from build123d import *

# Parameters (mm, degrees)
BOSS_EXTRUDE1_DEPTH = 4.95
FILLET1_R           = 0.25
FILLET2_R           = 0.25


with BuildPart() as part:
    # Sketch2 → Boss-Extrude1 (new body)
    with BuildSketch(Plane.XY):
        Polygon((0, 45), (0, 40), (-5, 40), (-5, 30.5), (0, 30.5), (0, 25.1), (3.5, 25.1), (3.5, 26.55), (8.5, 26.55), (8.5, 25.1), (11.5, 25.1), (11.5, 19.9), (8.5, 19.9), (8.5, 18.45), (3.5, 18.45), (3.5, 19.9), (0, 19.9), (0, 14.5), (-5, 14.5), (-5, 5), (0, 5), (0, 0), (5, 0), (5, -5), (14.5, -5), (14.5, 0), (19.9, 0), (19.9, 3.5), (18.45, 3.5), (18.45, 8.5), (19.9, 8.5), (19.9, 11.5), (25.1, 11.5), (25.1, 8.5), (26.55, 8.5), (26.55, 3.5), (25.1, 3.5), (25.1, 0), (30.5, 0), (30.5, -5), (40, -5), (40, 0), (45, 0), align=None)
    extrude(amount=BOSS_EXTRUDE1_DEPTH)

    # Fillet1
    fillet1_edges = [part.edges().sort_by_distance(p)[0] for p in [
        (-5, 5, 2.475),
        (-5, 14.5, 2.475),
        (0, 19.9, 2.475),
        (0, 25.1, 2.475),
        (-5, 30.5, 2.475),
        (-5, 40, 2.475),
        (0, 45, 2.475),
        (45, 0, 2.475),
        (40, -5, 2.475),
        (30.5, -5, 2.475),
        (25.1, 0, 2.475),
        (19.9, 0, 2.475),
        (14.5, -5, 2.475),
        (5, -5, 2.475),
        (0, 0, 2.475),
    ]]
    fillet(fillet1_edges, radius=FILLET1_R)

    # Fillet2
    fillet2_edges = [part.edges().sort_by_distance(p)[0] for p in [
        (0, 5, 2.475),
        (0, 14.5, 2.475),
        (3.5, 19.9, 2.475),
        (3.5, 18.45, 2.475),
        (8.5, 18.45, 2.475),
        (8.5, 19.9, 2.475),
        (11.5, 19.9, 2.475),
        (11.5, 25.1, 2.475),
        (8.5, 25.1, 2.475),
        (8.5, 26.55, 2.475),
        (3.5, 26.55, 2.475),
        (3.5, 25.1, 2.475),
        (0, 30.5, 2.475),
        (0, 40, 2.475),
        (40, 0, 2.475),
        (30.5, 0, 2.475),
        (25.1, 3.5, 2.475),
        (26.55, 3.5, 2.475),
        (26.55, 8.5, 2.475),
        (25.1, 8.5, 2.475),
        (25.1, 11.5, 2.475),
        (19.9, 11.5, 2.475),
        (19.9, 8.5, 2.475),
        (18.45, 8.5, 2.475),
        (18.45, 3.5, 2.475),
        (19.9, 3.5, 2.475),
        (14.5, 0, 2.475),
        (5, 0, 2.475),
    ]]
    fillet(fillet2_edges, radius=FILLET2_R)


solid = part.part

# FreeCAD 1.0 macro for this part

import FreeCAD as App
import Part
import Sketcher

V = App.Vector


def edges_at(feature, points):
    """Names of the edges that pass closest to the given points."""
    edges = feature.Shape.Edges
    near = lambda p: min(range(len(edges)), key=lambda i: edges[i].distToShape(Part.Vertex(*p))[0])
    return sorted({f"Edge{near(p) + 1}" for p in points})

doc = App.newDocument("Part")
body = doc.addObject("PartDesign::Body", "Body")

# Sketch on XY plane
sketch1 = body.newObject("Sketcher::SketchObject", "Sketch")
sketch1.AttachmentSupport = (doc.getObject("XY_Plane"), [""])
sketch1.MapMode = "FlatFace"
sketch1.addGeometry(Part.LineSegment(V(0, 45, 0), V(0, 40, 0)), False)
sketch1.addGeometry(Part.LineSegment(V(0, 40, 0), V(-5, 40, 0)), False)
sketch1.addGeometry(Part.LineSegment(V(-5, 40, 0), V(-5, 30.5, 0)), False)
sketch1.addGeometry(Part.LineSegment(V(-5, 30.5, 0), V(0, 30.5, 0)), False)
sketch1.addGeometry(Part.LineSegment(V(0, 30.5, 0), V(0, 25.1, 0)), False)
sketch1.addGeometry(Part.LineSegment(V(0, 25.1, 0), V(3.5, 25.1, 0)), False)
sketch1.addGeometry(Part.LineSegment(V(3.5, 25.1, 0), V(3.5, 26.6, 0)), False)
sketch1.addGeometry(Part.LineSegment(V(3.5, 26.6, 0), V(8.5, 26.6, 0)), False)
sketch1.addGeometry(Part.LineSegment(V(8.5, 26.6, 0), V(8.5, 25.1, 0)), False)
sketch1.addGeometry(Part.LineSegment(V(8.5, 25.1, 0), V(11.5, 25.1, 0)), False)
sketch1.addGeometry(Part.LineSegment(V(11.5, 25.1, 0), V(11.5, 19.9, 0)), False)
sketch1.addGeometry(Part.LineSegment(V(11.5, 19.9, 0), V(8.5, 19.9, 0)), False)
sketch1.addGeometry(Part.LineSegment(V(8.5, 19.9, 0), V(8.5, 18.4, 0)), False)
sketch1.addGeometry(Part.LineSegment(V(8.5, 18.4, 0), V(3.5, 18.4, 0)), False)
sketch1.addGeometry(Part.LineSegment(V(3.5, 18.4, 0), V(3.5, 19.9, 0)), False)
sketch1.addGeometry(Part.LineSegment(V(3.5, 19.9, 0), V(0, 19.9, 0)), False)
sketch1.addGeometry(Part.LineSegment(V(0, 19.9, 0), V(0, 14.5, 0)), False)
sketch1.addGeometry(Part.LineSegment(V(0, 14.5, 0), V(-5, 14.5, 0)), False)
sketch1.addGeometry(Part.LineSegment(V(-5, 14.5, 0), V(-5, 5, 0)), False)
sketch1.addGeometry(Part.LineSegment(V(-5, 5, 0), V(0, 5, 0)), False)
sketch1.addGeometry(Part.LineSegment(V(0, 5, 0), V(0, 0, 0)), False)
sketch1.addGeometry(Part.LineSegment(V(0, 0, 0), V(5, 0, 0)), False)
sketch1.addGeometry(Part.LineSegment(V(5, 0, 0), V(5, -5, 0)), False)
sketch1.addGeometry(Part.LineSegment(V(5, -5, 0), V(14.5, -5, 0)), False)
sketch1.addGeometry(Part.LineSegment(V(14.5, -5, 0), V(14.5, 0, 0)), False)
sketch1.addGeometry(Part.LineSegment(V(14.5, 0, 0), V(19.9, 0, 0)), False)
sketch1.addGeometry(Part.LineSegment(V(19.9, 0, 0), V(19.9, 3.5, 0)), False)
sketch1.addGeometry(Part.LineSegment(V(19.9, 3.5, 0), V(18.4, 3.5, 0)), False)
sketch1.addGeometry(Part.LineSegment(V(18.4, 3.5, 0), V(18.4, 8.5, 0)), False)
sketch1.addGeometry(Part.LineSegment(V(18.4, 8.5, 0), V(19.9, 8.5, 0)), False)
sketch1.addGeometry(Part.LineSegment(V(19.9, 8.5, 0), V(19.9, 11.5, 0)), False)
sketch1.addGeometry(Part.LineSegment(V(19.9, 11.5, 0), V(25.1, 11.5, 0)), False)
sketch1.addGeometry(Part.LineSegment(V(25.1, 11.5, 0), V(25.1, 8.5, 0)), False)
sketch1.addGeometry(Part.LineSegment(V(25.1, 8.5, 0), V(26.6, 8.5, 0)), False)
sketch1.addGeometry(Part.LineSegment(V(26.6, 8.5, 0), V(26.6, 3.5, 0)), False)
sketch1.addGeometry(Part.LineSegment(V(26.6, 3.5, 0), V(25.1, 3.5, 0)), False)
sketch1.addGeometry(Part.LineSegment(V(25.1, 3.5, 0), V(25.1, 0, 0)), False)
sketch1.addGeometry(Part.LineSegment(V(25.1, 0, 0), V(30.5, 0, 0)), False)
sketch1.addGeometry(Part.LineSegment(V(30.5, 0, 0), V(30.5, -5, 0)), False)
sketch1.addGeometry(Part.LineSegment(V(30.5, -5, 0), V(40, -5, 0)), False)
sketch1.addGeometry(Part.LineSegment(V(40, -5, 0), V(40, 0, 0)), False)
sketch1.addGeometry(Part.LineSegment(V(40, 0, 0), V(45, 0, 0)), False)
sketch1.addGeometry(Part.LineSegment(V(45, 0, 0), V(0, 45, 0)), False)
sketch1.addConstraint(Sketcher.Constraint("Coincident", 0, 2, 1, 1))
sketch1.addConstraint(Sketcher.Constraint("Coincident", 1, 2, 2, 1))
sketch1.addConstraint(Sketcher.Constraint("Coincident", 2, 2, 3, 1))
sketch1.addConstraint(Sketcher.Constraint("Coincident", 3, 2, 4, 1))
sketch1.addConstraint(Sketcher.Constraint("Coincident", 4, 2, 5, 1))
sketch1.addConstraint(Sketcher.Constraint("Coincident", 5, 2, 6, 1))
sketch1.addConstraint(Sketcher.Constraint("Coincident", 6, 2, 7, 1))
sketch1.addConstraint(Sketcher.Constraint("Coincident", 7, 2, 8, 1))
sketch1.addConstraint(Sketcher.Constraint("Coincident", 8, 2, 9, 1))
sketch1.addConstraint(Sketcher.Constraint("Coincident", 9, 2, 10, 1))
sketch1.addConstraint(Sketcher.Constraint("Coincident", 10, 2, 11, 1))
sketch1.addConstraint(Sketcher.Constraint("Coincident", 11, 2, 12, 1))
sketch1.addConstraint(Sketcher.Constraint("Coincident", 12, 2, 13, 1))
sketch1.addConstraint(Sketcher.Constraint("Coincident", 13, 2, 14, 1))
sketch1.addConstraint(Sketcher.Constraint("Coincident", 14, 2, 15, 1))
sketch1.addConstraint(Sketcher.Constraint("Coincident", 15, 2, 16, 1))
sketch1.addConstraint(Sketcher.Constraint("Coincident", 16, 2, 17, 1))
sketch1.addConstraint(Sketcher.Constraint("Coincident", 17, 2, 18, 1))
sketch1.addConstraint(Sketcher.Constraint("Coincident", 18, 2, 19, 1))
sketch1.addConstraint(Sketcher.Constraint("Coincident", 19, 2, 20, 1))
sketch1.addConstraint(Sketcher.Constraint("Coincident", 20, 2, 21, 1))
sketch1.addConstraint(Sketcher.Constraint("Coincident", 21, 2, 22, 1))
sketch1.addConstraint(Sketcher.Constraint("Coincident", 22, 2, 23, 1))
sketch1.addConstraint(Sketcher.Constraint("Coincident", 23, 2, 24, 1))
sketch1.addConstraint(Sketcher.Constraint("Coincident", 24, 2, 25, 1))
sketch1.addConstraint(Sketcher.Constraint("Coincident", 25, 2, 26, 1))
sketch1.addConstraint(Sketcher.Constraint("Coincident", 26, 2, 27, 1))
sketch1.addConstraint(Sketcher.Constraint("Coincident", 27, 2, 28, 1))
sketch1.addConstraint(Sketcher.Constraint("Coincident", 28, 2, 29, 1))
sketch1.addConstraint(Sketcher.Constraint("Coincident", 29, 2, 30, 1))
sketch1.addConstraint(Sketcher.Constraint("Coincident", 30, 2, 31, 1))
sketch1.addConstraint(Sketcher.Constraint("Coincident", 31, 2, 32, 1))
sketch1.addConstraint(Sketcher.Constraint("Coincident", 32, 2, 33, 1))
sketch1.addConstraint(Sketcher.Constraint("Coincident", 33, 2, 34, 1))
sketch1.addConstraint(Sketcher.Constraint("Coincident", 34, 2, 35, 1))
sketch1.addConstraint(Sketcher.Constraint("Coincident", 35, 2, 36, 1))
sketch1.addConstraint(Sketcher.Constraint("Coincident", 36, 2, 37, 1))
sketch1.addConstraint(Sketcher.Constraint("Coincident", 37, 2, 38, 1))
sketch1.addConstraint(Sketcher.Constraint("Coincident", 38, 2, 39, 1))
sketch1.addConstraint(Sketcher.Constraint("Coincident", 39, 2, 40, 1))
sketch1.addConstraint(Sketcher.Constraint("Coincident", 40, 2, 41, 1))
sketch1.addConstraint(Sketcher.Constraint("Coincident", 41, 2, 42, 1))
sketch1.addConstraint(Sketcher.Constraint("Coincident", 42, 2, 0, 1))
sketch1.addConstraint(Sketcher.Constraint("Vertical", 0))
sketch1.addConstraint(Sketcher.Constraint("Horizontal", 1))
sketch1.addConstraint(Sketcher.Constraint("Vertical", 2))
sketch1.addConstraint(Sketcher.Constraint("Horizontal", 3))
sketch1.addConstraint(Sketcher.Constraint("Vertical", 4))
sketch1.addConstraint(Sketcher.Constraint("Horizontal", 5))
sketch1.addConstraint(Sketcher.Constraint("Vertical", 6))
sketch1.addConstraint(Sketcher.Constraint("Horizontal", 7))
sketch1.addConstraint(Sketcher.Constraint("Vertical", 8))
sketch1.addConstraint(Sketcher.Constraint("Horizontal", 9))
sketch1.addConstraint(Sketcher.Constraint("Vertical", 10))
sketch1.addConstraint(Sketcher.Constraint("Horizontal", 11))
sketch1.addConstraint(Sketcher.Constraint("Vertical", 12))
sketch1.addConstraint(Sketcher.Constraint("Horizontal", 13))
sketch1.addConstraint(Sketcher.Constraint("Vertical", 14))
sketch1.addConstraint(Sketcher.Constraint("Horizontal", 15))
sketch1.addConstraint(Sketcher.Constraint("Vertical", 16))
sketch1.addConstraint(Sketcher.Constraint("Horizontal", 17))
sketch1.addConstraint(Sketcher.Constraint("Vertical", 18))
sketch1.addConstraint(Sketcher.Constraint("Horizontal", 19))
sketch1.addConstraint(Sketcher.Constraint("Vertical", 20))
sketch1.addConstraint(Sketcher.Constraint("Horizontal", 21))
sketch1.addConstraint(Sketcher.Constraint("Vertical", 22))
sketch1.addConstraint(Sketcher.Constraint("Horizontal", 23))
sketch1.addConstraint(Sketcher.Constraint("Vertical", 24))
sketch1.addConstraint(Sketcher.Constraint("Horizontal", 25))
sketch1.addConstraint(Sketcher.Constraint("Vertical", 26))
sketch1.addConstraint(Sketcher.Constraint("Horizontal", 27))
sketch1.addConstraint(Sketcher.Constraint("Vertical", 28))
sketch1.addConstraint(Sketcher.Constraint("Horizontal", 29))
sketch1.addConstraint(Sketcher.Constraint("Vertical", 30))
sketch1.addConstraint(Sketcher.Constraint("Horizontal", 31))
sketch1.addConstraint(Sketcher.Constraint("Vertical", 32))
sketch1.addConstraint(Sketcher.Constraint("Horizontal", 33))
sketch1.addConstraint(Sketcher.Constraint("Vertical", 34))
sketch1.addConstraint(Sketcher.Constraint("Horizontal", 35))
sketch1.addConstraint(Sketcher.Constraint("Vertical", 36))
sketch1.addConstraint(Sketcher.Constraint("Horizontal", 37))
sketch1.addConstraint(Sketcher.Constraint("Vertical", 38))
sketch1.addConstraint(Sketcher.Constraint("Horizontal", 39))
sketch1.addConstraint(Sketcher.Constraint("Vertical", 40))
sketch1.addConstraint(Sketcher.Constraint("Horizontal", 41))
sketch1.addConstraint(Sketcher.Constraint("Coincident", 20, 2, -1, 1))
sketch1.addConstraint(Sketcher.Constraint("Symmetric", 18, 2, 22, 2, -1, 1))
sketch1.addConstraint(Sketcher.Constraint("PointOnObject", 0, 2, -2))
sketch1.addConstraint(Sketcher.Constraint("PointOnObject", 3, 2, -2))
sketch1.addConstraint(Sketcher.Constraint("PointOnObject", 15, 2, -2))
sketch1.addConstraint(Sketcher.Constraint("PointOnObject", 24, 2, -1))
sketch1.addConstraint(Sketcher.Constraint("PointOnObject", 36, 2, -1))
sketch1.addConstraint(Sketcher.Constraint("PointOnObject", 40, 2, -1))
sketch1.addConstraint(Sketcher.Constraint("Horizontal", 5, 2, 8, 2))
sketch1.addConstraint(Sketcher.Constraint("Horizontal", 11, 2, 14, 2))
sketch1.addConstraint(Sketcher.Constraint("Horizontal", 29, 2, 32, 2))
sketch1.addConstraint(Sketcher.Constraint("Horizontal", 27, 2, 34, 2))
sketch1.addConstraint(Sketcher.Constraint("Horizontal", 23, 2, 38, 2))
sketch1.addConstraint(Sketcher.Constraint("Vertical", 8, 2, 11, 2))
sketch1.addConstraint(Sketcher.Constraint("Vertical", 6, 2, 13, 2))
sketch1.addConstraint(Sketcher.Constraint("Vertical", 2, 2, 17, 2))
sketch1.addConstraint(Sketcher.Constraint("Vertical", 26, 2, 29, 2))
sketch1.addConstraint(Sketcher.Constraint("Vertical", 32, 2, 35, 2))
sketch1.addConstraint(Sketcher.Constraint("Equal", 3, 7))
sketch1.addConstraint(Sketcher.Constraint("Equal", 29, 33))
sketch1.addConstraint(Sketcher.Constraint("Equal", 25, 37))
sketch1.addConstraint(Sketcher.Constraint("Equal", 23, 39))
sketch1.addConstraint(Sketcher.Constraint("Equal", 21, 41))
sketch1.addConstraint(Sketcher.Constraint("Equal", 41, 0))
sketch1.addConstraint(Sketcher.Constraint("Equal", 39, 2))
sketch1.addConstraint(Sketcher.Constraint("Equal", 37, 4))
sketch1.addConstraint(Sketcher.Constraint("Equal", 35, 6))
sketch1.addConstraint(Sketcher.Constraint("Equal", 31, 10))
sketch1.addConstraint(Sketcher.Constraint("Equal", 8, 12))
sketch1.addConstraint(Sketcher.Constraint("Equal", 4, 16))
sketch1.addConstraint(Sketcher.Constraint("Equal", 2, 18))
sketch1.addConstraint(Sketcher.Constraint("Equal", 0, 20))
sketch1.addConstraint(Sketcher.Constraint("Equal", 15, 26))
sketch1.addConstraint(Sketcher.Constraint("Equal", 24, 28))
sketch1.addConstraint(Sketcher.Constraint("Equal", 11, 30))
sketch1.addConstraint(Sketcher.Constraint("DistanceX", 1, 2, 1, 1, 5.0))
sketch1.addConstraint(Sketcher.Constraint("DistanceX", 9, 1, 9, 2, 3.0))
sketch1.addConstraint(Sketcher.Constraint("DistanceX", 5, 1, 5, 2, 3.5))
sketch1.addConstraint(Sketcher.Constraint("DistanceX", 23, 1, 23, 2, 9.5))
sketch1.addConstraint(Sketcher.Constraint("DistanceX", 25, 1, 25, 2, 5.4))
sketch1.addConstraint(Sketcher.Constraint("DistanceX", 31, 1, 31, 2, 5.2))
sketch1.addConstraint(Sketcher.Constraint("DistanceX", 27, 2, 27, 1, 1.45))
pad1 = body.newObject("PartDesign::Pad", "Pad")
pad1.Profile = sketch1
pad1.Length = 4.95
doc.recompute()

fillet = body.newObject("PartDesign::Fillet", "Fillet")
fillet.Base = (pad1, edges_at(pad1, [
    (-5, 5, 2.475),
    (-5, 14.5, 2.475),
    (0, 19.9, 2.475),
    (0, 25.1, 2.475),
    (-5, 30.5, 2.475),
    (-5, 40, 2.475),
    (0, 45, 2.475),
    (45, 0, 2.475),
    (40, -5, 2.475),
    (30.5, -5, 2.475),
    (25.1, 0, 2.475),
    (19.9, 0, 2.475),
    (14.5, -5, 2.475),
    (5, -5, 2.475),
    (0, 0, 2.475),
]))
fillet.Radius = 0.25
doc.recompute()

fillet2 = body.newObject("PartDesign::Fillet", "Fillet001")
fillet2.Base = (fillet, edges_at(fillet, [
    (0, 5, 2.475),
    (0, 14.5, 2.475),
    (3.5, 19.9, 2.475),
    (3.5, 18.45, 2.475),
    (8.5, 18.45, 2.475),
    (8.5, 19.9, 2.475),
    (11.5, 19.9, 2.475),
    (11.5, 25.1, 2.475),
    (8.5, 25.1, 2.475),
    (8.5, 26.55, 2.475),
    (3.5, 26.55, 2.475),
    (3.5, 25.1, 2.475),
    (0, 30.5, 2.475),
    (0, 40, 2.475),
    (40, 0, 2.475),
    (30.5, 0, 2.475),
    (25.1, 3.5, 2.475),
    (26.55, 3.5, 2.475),
    (26.55, 8.5, 2.475),
    (25.1, 8.5, 2.475),
    (25.1, 11.5, 2.475),
    (19.9, 11.5, 2.475),
    (19.9, 8.5, 2.475),
    (18.45, 8.5, 2.475),
    (18.45, 3.5, 2.475),
    (19.9, 3.5, 2.475),
    (14.5, 0, 2.475),
    (5, 0, 2.475),
]))
fillet2.Radius = 0.25

doc.recompute()
